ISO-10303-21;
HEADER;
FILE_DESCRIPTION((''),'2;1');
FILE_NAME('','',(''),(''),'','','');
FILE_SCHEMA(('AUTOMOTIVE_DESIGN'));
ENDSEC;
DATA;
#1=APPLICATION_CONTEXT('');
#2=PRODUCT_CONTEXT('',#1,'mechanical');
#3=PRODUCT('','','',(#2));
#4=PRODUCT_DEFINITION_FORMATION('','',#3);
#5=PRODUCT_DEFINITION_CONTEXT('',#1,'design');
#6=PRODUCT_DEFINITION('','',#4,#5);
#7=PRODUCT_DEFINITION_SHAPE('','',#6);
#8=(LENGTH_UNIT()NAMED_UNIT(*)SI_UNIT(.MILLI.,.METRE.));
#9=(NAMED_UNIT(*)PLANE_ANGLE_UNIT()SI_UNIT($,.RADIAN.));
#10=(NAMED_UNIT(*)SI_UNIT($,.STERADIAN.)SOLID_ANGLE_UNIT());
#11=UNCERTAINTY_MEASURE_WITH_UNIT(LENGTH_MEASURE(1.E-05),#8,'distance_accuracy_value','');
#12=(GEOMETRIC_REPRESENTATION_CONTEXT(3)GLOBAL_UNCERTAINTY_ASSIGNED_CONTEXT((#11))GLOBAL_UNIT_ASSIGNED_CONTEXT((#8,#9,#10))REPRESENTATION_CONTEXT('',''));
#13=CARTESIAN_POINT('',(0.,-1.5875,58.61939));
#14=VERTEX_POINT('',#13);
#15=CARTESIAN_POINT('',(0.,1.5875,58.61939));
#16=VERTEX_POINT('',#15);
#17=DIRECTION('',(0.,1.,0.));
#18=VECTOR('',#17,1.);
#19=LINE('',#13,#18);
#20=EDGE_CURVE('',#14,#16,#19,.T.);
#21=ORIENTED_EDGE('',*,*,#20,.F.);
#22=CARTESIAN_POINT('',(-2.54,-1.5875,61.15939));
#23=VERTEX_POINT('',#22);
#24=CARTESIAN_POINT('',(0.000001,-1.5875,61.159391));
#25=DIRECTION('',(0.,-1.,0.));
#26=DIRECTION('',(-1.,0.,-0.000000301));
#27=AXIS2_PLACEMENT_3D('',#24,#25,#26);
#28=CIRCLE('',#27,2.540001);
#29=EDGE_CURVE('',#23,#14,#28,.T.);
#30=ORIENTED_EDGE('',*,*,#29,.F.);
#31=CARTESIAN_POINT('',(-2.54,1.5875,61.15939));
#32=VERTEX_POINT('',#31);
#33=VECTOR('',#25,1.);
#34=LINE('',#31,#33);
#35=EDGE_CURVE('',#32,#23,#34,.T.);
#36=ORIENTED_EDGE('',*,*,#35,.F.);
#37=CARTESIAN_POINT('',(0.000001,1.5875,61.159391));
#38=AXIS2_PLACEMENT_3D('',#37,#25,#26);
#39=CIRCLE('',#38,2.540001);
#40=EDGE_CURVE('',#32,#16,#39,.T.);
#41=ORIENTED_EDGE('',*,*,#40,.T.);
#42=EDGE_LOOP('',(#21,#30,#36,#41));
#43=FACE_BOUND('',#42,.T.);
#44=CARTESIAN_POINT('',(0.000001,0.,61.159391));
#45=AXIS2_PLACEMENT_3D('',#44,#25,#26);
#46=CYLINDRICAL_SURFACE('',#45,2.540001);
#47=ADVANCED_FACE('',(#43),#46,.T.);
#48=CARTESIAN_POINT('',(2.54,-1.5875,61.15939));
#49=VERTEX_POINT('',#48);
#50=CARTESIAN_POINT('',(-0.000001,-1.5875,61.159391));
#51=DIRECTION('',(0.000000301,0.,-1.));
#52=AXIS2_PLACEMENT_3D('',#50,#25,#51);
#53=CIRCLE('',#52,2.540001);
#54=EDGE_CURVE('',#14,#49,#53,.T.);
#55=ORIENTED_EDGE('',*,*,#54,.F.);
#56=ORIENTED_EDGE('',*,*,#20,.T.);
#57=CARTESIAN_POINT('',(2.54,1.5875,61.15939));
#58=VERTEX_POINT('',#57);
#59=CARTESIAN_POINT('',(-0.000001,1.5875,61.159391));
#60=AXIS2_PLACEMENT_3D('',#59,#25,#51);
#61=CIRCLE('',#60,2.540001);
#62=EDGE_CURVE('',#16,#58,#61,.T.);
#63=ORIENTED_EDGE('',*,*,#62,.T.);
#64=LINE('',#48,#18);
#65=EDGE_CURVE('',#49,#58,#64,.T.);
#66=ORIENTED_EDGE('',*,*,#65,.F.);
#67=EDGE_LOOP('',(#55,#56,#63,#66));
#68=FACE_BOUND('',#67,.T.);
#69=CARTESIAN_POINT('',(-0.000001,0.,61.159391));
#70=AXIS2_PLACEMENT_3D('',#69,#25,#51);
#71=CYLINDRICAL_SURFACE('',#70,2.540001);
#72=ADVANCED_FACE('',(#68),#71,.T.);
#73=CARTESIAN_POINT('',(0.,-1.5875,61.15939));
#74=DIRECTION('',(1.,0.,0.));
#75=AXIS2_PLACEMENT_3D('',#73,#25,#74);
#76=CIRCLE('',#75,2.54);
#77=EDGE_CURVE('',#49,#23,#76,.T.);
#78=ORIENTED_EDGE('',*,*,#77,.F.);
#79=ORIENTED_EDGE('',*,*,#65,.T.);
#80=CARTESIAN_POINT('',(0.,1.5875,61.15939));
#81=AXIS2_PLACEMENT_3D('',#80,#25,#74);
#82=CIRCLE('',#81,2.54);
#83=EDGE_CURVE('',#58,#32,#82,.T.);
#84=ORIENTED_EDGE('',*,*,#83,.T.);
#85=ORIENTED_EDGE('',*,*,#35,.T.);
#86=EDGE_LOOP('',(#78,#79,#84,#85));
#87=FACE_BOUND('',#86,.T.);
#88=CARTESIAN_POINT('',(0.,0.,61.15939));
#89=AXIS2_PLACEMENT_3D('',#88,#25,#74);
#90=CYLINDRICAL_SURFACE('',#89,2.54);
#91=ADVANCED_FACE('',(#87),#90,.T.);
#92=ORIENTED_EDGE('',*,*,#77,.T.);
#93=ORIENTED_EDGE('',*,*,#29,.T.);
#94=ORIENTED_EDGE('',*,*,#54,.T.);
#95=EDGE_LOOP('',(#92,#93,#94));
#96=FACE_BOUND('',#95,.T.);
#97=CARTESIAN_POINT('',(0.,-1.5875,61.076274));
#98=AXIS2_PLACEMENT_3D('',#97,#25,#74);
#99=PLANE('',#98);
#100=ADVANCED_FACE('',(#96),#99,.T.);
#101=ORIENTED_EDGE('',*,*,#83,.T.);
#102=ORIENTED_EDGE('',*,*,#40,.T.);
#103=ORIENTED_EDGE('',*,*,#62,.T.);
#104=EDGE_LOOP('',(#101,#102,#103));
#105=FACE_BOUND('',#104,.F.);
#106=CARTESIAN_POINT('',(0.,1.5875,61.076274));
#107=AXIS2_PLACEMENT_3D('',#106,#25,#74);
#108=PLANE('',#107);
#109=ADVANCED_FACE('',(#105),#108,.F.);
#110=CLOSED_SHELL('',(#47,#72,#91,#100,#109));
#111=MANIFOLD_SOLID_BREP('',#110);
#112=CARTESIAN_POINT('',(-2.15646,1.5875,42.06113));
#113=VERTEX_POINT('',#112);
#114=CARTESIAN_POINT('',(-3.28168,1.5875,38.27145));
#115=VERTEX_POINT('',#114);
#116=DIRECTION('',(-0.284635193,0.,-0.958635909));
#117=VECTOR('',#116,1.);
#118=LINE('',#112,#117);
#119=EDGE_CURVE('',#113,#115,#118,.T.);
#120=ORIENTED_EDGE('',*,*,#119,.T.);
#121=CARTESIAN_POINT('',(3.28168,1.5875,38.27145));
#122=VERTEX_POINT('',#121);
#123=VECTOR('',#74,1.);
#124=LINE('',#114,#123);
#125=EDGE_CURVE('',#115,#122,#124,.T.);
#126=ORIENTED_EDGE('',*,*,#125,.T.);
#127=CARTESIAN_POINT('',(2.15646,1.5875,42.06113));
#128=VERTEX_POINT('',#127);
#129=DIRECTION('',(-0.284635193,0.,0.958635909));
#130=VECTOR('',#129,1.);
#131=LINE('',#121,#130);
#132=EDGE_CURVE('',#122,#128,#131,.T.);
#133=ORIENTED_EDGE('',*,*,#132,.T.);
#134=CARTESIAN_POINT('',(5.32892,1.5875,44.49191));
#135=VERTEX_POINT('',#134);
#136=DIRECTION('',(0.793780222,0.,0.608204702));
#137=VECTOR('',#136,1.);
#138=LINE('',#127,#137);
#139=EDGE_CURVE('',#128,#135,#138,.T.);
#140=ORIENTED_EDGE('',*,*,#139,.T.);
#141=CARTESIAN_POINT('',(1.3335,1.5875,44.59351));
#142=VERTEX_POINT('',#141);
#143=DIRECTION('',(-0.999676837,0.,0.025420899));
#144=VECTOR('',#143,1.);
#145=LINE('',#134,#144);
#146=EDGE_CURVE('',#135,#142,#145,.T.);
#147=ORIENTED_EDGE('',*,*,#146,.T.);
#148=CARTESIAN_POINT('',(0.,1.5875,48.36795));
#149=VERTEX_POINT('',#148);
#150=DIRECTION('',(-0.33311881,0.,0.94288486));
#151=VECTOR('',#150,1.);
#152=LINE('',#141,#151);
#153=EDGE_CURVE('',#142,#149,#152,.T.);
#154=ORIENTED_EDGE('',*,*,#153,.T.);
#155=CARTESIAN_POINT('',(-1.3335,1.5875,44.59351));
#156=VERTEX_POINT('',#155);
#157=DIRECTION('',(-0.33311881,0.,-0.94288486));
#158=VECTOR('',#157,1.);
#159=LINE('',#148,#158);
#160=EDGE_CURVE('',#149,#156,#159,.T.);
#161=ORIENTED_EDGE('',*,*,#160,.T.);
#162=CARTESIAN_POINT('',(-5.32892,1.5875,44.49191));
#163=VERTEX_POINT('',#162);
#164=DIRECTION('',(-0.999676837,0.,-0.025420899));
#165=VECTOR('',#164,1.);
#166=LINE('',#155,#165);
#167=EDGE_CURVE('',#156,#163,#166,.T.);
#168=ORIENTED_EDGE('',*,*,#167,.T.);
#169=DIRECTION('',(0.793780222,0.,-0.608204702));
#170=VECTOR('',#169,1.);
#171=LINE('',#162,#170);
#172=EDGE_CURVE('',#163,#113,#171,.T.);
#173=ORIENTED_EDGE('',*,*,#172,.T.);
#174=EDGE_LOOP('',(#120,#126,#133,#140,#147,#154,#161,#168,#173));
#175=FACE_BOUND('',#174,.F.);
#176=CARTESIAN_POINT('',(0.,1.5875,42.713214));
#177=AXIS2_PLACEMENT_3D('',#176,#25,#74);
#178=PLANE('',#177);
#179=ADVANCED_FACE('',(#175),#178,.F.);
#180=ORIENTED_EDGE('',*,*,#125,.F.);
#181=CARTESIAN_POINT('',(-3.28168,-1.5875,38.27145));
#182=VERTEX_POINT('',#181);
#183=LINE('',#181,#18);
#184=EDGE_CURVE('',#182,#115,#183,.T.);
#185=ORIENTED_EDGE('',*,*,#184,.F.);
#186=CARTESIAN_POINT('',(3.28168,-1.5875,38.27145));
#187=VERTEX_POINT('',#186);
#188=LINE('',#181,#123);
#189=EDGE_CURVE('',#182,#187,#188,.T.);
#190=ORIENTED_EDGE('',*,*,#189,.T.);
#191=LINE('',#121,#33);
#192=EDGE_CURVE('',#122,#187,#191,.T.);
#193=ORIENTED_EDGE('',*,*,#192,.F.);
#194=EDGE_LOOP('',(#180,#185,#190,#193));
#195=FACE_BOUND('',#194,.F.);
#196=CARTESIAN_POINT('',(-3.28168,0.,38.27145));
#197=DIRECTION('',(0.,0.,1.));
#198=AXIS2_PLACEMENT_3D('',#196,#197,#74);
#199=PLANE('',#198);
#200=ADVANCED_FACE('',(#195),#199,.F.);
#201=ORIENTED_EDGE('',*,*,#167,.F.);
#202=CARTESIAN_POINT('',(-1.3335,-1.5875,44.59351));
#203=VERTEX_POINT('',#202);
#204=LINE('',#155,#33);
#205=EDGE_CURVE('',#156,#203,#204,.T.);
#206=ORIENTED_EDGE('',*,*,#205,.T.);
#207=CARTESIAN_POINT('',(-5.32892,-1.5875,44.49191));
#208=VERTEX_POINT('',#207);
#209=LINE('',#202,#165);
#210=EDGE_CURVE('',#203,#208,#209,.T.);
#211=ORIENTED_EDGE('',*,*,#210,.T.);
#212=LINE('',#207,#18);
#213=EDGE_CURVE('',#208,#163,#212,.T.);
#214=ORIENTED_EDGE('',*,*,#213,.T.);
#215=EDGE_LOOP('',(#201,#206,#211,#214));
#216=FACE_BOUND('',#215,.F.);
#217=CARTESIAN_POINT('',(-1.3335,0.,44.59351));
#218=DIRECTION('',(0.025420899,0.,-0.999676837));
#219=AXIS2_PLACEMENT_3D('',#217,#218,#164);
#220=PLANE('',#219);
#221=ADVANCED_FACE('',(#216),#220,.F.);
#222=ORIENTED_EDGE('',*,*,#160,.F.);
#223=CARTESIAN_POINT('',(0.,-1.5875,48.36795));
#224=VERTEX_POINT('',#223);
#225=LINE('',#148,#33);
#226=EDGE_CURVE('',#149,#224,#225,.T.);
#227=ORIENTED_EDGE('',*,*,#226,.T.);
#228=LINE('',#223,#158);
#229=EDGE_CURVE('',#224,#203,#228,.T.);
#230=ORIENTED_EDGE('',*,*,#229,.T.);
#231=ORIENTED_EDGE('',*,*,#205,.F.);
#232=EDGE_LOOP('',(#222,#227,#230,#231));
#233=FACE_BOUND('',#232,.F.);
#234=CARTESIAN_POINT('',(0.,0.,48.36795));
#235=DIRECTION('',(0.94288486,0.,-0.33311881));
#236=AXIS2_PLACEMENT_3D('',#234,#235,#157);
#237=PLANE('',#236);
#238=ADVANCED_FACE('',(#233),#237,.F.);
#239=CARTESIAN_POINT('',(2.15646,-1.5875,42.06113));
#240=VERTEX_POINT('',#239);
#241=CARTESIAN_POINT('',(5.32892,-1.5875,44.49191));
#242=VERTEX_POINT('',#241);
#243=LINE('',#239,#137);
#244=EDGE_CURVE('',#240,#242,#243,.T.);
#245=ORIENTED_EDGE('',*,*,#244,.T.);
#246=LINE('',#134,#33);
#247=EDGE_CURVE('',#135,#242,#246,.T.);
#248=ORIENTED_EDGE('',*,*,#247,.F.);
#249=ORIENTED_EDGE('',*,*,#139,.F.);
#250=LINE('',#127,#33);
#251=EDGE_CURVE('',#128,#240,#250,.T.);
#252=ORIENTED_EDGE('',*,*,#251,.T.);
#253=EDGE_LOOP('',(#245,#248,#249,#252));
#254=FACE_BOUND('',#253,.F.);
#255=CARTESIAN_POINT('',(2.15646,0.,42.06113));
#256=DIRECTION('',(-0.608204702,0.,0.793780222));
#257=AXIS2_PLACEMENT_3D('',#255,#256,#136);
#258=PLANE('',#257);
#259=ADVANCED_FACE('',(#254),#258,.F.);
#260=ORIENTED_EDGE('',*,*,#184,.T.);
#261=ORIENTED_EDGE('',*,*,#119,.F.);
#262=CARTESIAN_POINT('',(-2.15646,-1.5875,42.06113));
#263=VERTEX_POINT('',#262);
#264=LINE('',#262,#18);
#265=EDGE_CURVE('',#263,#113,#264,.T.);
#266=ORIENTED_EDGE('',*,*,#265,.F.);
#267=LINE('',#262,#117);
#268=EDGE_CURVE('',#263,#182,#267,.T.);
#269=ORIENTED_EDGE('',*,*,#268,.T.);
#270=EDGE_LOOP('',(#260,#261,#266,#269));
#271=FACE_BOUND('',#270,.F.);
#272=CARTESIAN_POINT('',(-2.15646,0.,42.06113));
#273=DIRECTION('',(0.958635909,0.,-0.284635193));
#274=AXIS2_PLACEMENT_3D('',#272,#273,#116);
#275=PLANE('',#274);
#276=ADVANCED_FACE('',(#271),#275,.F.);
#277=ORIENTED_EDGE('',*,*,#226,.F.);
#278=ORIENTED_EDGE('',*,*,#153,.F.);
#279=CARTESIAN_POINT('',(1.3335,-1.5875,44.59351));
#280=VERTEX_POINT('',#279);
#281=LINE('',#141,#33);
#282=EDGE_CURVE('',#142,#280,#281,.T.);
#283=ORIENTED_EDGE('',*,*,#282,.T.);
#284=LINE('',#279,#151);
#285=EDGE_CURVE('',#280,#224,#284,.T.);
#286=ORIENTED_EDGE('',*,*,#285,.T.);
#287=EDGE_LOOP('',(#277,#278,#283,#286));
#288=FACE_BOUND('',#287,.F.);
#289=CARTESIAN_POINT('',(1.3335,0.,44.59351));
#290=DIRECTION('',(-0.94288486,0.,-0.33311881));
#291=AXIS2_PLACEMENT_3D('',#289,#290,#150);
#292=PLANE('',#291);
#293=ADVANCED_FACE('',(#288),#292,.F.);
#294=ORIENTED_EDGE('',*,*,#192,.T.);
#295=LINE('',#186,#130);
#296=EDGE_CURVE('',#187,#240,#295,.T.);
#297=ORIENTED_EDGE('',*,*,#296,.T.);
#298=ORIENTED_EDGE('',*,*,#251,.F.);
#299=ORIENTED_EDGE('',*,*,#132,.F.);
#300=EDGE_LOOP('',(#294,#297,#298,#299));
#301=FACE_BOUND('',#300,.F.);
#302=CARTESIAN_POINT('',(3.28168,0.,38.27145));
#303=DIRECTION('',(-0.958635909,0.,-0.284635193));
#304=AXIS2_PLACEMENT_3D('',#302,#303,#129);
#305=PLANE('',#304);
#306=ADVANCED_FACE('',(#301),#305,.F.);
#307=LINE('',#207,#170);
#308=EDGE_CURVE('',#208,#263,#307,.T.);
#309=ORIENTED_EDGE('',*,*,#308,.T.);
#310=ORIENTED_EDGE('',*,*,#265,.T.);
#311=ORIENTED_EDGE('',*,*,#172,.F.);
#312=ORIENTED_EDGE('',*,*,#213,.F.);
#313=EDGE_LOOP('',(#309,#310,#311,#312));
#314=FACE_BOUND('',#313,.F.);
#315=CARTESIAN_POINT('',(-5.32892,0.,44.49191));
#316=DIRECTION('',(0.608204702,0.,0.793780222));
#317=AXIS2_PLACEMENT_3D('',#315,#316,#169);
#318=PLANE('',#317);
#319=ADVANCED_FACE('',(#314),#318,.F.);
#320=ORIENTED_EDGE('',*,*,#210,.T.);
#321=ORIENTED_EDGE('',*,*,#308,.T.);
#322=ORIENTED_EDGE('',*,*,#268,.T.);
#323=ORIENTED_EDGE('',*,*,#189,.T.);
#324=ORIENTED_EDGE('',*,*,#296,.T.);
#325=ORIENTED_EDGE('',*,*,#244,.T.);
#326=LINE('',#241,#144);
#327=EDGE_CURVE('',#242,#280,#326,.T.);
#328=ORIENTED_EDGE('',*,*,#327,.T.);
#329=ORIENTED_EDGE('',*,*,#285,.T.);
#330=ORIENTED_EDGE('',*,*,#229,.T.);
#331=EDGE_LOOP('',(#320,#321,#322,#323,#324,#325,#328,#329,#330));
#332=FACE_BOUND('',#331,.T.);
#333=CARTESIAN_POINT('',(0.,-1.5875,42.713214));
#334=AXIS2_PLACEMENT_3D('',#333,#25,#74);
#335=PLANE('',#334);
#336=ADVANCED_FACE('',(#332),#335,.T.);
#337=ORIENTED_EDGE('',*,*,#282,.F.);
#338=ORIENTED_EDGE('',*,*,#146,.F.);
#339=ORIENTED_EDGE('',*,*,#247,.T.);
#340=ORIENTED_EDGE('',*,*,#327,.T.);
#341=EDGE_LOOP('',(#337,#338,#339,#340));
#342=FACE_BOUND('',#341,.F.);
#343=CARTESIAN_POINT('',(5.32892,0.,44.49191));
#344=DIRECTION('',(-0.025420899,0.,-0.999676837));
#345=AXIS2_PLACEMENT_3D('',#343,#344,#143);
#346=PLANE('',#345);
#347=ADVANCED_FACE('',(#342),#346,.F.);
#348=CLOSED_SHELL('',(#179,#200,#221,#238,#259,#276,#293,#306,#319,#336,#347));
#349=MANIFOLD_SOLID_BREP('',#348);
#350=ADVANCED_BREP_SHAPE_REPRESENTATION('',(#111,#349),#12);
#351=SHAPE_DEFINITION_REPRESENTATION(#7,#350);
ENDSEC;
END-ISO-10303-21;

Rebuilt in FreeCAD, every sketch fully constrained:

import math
import FreeCAD as App
import Part
import Sketcher
from FreeCAD import Vector
Q = App.Units.Quantity


def add_polygon(sketch, points):
    """Adds a closed chain of lines whose ends are joined by coincident constraints."""
    first, n = sketch.GeometryCount, len(points)
    for a, b in zip(points, points[1:] + points[:1]):
        sketch.addGeometry(Part.LineSegment(App.Vector(*a, 0), App.Vector(*b, 0)), False)
    for i in range(n):
        sketch.addConstraint(Sketcher.Constraint("Coincident", first + i, 2, first + (i + 1) % n, 1))

doc = App.newDocument("Part")
body = doc.addObject("PartDesign::Body", "Body")
body.AllowCompound = True

# Sketch on XZ plane
sketch1 = body.newObject("Sketcher::SketchObject", "Sketch")
sketch1.AttachmentSupport = (doc.getObject("XZ_Plane"), [""])
sketch1.MapMode = "FlatFace"
add_polygon(sketch1, [(-3.3, 38.3), (3.3, 38.3), (2.2, 42.1), (5.3, 44.5), (1.3, 44.6), (0, 48.4), (-1.3, 44.6), (-5.3, 44.5), (-2.2, 42.1)])  # lines 0-8
sketch1.addGeometry(Part.ArcOfCircle(Part.Circle(Vector(0, 61.2, 0), Vector(0, 0, 1), 2.5), math.radians(0), math.radians(180)), False)  # 9
sketch1.addGeometry(Part.ArcOfCircle(Part.Circle(Vector(0, 61.2, 0), Vector(0, 0, 1), 2.5), math.radians(-180), math.radians(-90)), False)  # 10
sketch1.addGeometry(Part.ArcOfCircle(Part.Circle(Vector(0, 61.2, 0), Vector(0, 0, 1), 2.5), math.radians(-90), math.radians(0)), False)  # 11
sketch1.addConstraint(Sketcher.Constraint("Tangent", 9, 2, 10, 1))
sketch1.addConstraint(Sketcher.Constraint("Tangent", 10, 2, 11, 1))
sketch1.addConstraint(Sketcher.Constraint("Tangent", 11, 2, 9, 1))
sketch1.addConstraint(Sketcher.Constraint("Horizontal", 0))
sketch1.addConstraint(Sketcher.Constraint("Symmetric", 3, 2, 5, 2, -2))
sketch1.addConstraint(Sketcher.Constraint("Symmetric", 2, 2, 6, 2, -2))
sketch1.addConstraint(Sketcher.Constraint("Symmetric", 1, 2, 7, 2, -2))
sketch1.addConstraint(Sketcher.Constraint("Symmetric", 9, 2, 11, 2, -2))
sketch1.addConstraint(Sketcher.Constraint("PointOnObject", 4, 2, -2))
sketch1.addConstraint(Sketcher.Constraint("PointOnObject", 10, 2, -2))
sketch1.addConstraint(Sketcher.Constraint("Horizontal", 11, 3, 9, 2))
sketch1.addConstraint(Sketcher.Constraint("Equal", 1, 8))
sketch1.addConstraint(Sketcher.Constraint("Radius", 9, Q("0.1 in")))
sketch1.addConstraint(Sketcher.Constraint("DistanceX", 0, 1, 0, 2, Q("0.2584 in")))
sketch1.addConstraint(Sketcher.Constraint("DistanceY", 2, 2, 3, 2, Q("0.004 in")))
sketch1.addConstraint(Sketcher.Constraint("DistanceX", 5, 2, 3, 2, Q("0.105 in")))
sketch1.addConstraint(Sketcher.Constraint("DistanceX", 6, 2, 0, 2, Q("0.339 in")))
sketch1.addConstraint(Sketcher.Constraint("DistanceX", -1, 1, 1, 2, Q("0.0849 in")))
sketch1.addConstraint(Sketcher.Constraint("DistanceY", 0, 2, 9, 3, Q("0.9011 in")))
sketch1.addConstraint(Sketcher.Constraint("DistanceY", 0, 2, 1, 2, Q("0.1492 in")))
sketch1.addConstraint(Sketcher.Constraint("DistanceY", 1, 2, 2, 2, Q("0.0957 in")))
sketch1.addConstraint(Sketcher.Constraint("DistanceY", 3, 2, 4, 2, Q("0.1486 in")))
sketch1.addConstraint(Sketcher.Constraint("DistanceY", -1, 1, 9, 3, 61.15939))
pad1 = body.newObject("PartDesign::Pad", "Pad")
pad1.Profile = sketch1
pad1.Length = Q("0.125 in")
pad1.Midplane = True

doc.recompute()
